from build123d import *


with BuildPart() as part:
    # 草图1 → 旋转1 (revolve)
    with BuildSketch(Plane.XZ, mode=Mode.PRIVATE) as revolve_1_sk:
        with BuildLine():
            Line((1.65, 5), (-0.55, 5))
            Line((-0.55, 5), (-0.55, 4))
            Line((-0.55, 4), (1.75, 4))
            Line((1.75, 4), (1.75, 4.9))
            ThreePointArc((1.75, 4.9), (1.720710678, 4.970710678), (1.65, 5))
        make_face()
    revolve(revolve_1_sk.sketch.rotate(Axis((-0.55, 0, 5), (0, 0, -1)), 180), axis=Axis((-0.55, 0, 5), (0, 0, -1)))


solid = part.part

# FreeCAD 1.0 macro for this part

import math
import FreeCAD as App
import Part
import Sketcher
from FreeCAD import Vector
Q = App.Units.Quantity

doc = App.newDocument("Part")
body = doc.addObject("PartDesign::Body", "Body")

sketch1 = body.newObject("Sketcher::SketchObject", "Sketch")
sketch1.AttachmentSupport = (doc.getObject("XZ_Plane"), [""])
sketch1.MapMode = "FlatFace"
sketch1.addGeometry(Part.LineSegment(Vector(1.65, 5, 0), Vector(-0.55, 5, 0)), False)
sketch1.addGeometry(Part.LineSegment(Vector(-0.55, 5, 0), Vector(-0.55, 4, 0)), False)
sketch1.addGeometry(Part.LineSegment(Vector(-0.55, 4, 0), Vector(1.75, 4, 0)), False)
sketch1.addGeometry(Part.LineSegment(Vector(1.75, 4, 0), Vector(1.75, 4.9, 0)), False)
sketch1.addGeometry(Part.ArcOfCircle(Part.Circle(Vector(1.65, 4.9, 0), Vector(0, 0, 1), 0.1), math.radians(0), math.radians(90)), False)
sketch1.addGeometry(Part.LineSegment(Vector(-0.55, 5, 0), Vector(-0.55, 4, 0)), True)
sketch1.addConstraint(Sketcher.Constraint("Coincident", 0, 2, 1, 1))
sketch1.addConstraint(Sketcher.Constraint("Coincident", 1, 2, 2, 1))
sketch1.addConstraint(Sketcher.Constraint("Coincident", 2, 2, 3, 1))
sketch1.addConstraint(Sketcher.Constraint("Tangent", 3, 2, 4, 1))
sketch1.addConstraint(Sketcher.Constraint("Tangent", 4, 2, 0, 1))
sketch1.addConstraint(Sketcher.Constraint("Horizontal", 0))
sketch1.addConstraint(Sketcher.Constraint("Vertical", 1))
sketch1.addConstraint(Sketcher.Constraint("Horizontal", 2))
sketch1.addConstraint(Sketcher.Constraint("Vertical", 3))
sketch1.addConstraint(Sketcher.Constraint("Vertical", 5))
sketch1.addConstraint(Sketcher.Constraint("Coincident", 5, 1, 0, 2))
sketch1.addConstraint(Sketcher.Constraint("Horizontal", 2, 2, 5, 2))
sketch1.addConstraint(Sketcher.Constraint("Radius", 4, Q("0.1 mm")))
sketch1.addConstraint(Sketcher.Constraint("DistanceY", 1, 2, 1, 1, Q("1 mm")))
sketch1.addConstraint(Sketcher.Constraint("DistanceX", 0, 2, 0, 1, Q("2.2 mm")))
sketch1.addConstraint(Sketcher.Constraint("DistanceY", -1, 1, 0, 2, Q("5 mm")))
sketch1.addConstraint(Sketcher.Constraint("DistanceX", -1, 1, 4, 3, Q("1.65 mm")))
revolution = body.newObject("PartDesign::Revolution", "Revolution")
revolution.Profile = sketch1
revolution.ReferenceAxis = (sketch1, ["Axis0"])
revolution.Angle = 360

doc.recompute()
